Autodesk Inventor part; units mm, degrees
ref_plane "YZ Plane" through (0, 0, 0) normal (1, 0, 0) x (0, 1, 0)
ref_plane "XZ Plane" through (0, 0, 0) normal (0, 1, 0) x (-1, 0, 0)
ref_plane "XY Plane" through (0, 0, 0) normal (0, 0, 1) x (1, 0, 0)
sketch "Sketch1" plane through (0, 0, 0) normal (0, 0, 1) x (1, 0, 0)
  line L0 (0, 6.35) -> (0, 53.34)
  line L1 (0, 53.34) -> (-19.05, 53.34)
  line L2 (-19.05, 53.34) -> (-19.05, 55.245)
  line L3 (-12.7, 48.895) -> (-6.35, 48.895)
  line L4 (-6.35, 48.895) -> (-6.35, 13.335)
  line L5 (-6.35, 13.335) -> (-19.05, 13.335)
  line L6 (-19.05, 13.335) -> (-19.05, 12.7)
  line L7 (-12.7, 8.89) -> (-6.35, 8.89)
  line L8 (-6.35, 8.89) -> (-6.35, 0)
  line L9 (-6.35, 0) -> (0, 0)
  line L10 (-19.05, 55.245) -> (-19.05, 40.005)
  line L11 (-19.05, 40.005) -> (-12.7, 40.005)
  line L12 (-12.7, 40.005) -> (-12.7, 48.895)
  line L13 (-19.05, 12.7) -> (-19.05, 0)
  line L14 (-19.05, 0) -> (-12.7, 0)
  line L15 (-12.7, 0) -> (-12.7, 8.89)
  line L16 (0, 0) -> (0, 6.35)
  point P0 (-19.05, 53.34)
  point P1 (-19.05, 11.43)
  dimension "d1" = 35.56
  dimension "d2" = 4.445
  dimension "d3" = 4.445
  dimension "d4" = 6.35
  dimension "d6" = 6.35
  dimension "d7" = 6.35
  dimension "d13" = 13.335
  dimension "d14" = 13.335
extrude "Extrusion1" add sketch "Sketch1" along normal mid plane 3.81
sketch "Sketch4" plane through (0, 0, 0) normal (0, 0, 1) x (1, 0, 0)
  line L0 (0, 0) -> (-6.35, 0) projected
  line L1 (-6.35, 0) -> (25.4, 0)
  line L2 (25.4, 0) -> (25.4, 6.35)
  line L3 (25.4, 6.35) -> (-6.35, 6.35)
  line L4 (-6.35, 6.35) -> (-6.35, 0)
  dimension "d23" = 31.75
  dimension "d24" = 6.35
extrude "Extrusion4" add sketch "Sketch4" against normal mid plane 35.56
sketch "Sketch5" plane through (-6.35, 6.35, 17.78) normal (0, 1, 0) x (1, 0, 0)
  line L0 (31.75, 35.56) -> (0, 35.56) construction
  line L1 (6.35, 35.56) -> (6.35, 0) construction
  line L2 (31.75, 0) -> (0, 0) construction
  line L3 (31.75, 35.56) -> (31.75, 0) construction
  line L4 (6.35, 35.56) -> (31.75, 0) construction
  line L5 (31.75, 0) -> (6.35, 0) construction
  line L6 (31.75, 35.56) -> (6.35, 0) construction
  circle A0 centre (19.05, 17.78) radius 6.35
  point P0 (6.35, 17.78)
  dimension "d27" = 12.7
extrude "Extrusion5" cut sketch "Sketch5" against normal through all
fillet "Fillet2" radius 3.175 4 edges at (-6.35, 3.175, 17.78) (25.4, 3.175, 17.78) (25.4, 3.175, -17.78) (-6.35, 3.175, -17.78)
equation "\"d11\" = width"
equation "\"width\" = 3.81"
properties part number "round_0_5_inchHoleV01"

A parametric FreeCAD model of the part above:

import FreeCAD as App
import Part
import Sketcher
Q = App.Units.Quantity


def edges_at(feature, points):
    """Names of the edges that pass closest to the given points."""
    edges = feature.Shape.Edges
    near = lambda p: min(range(len(edges)), key=lambda i: edges[i].distToShape(Part.Vertex(*p))[0])
    return sorted({f"Edge{near(p) + 1}" for p in points})


def add_polygon(sketch, points):
    """Adds a closed chain of lines whose ends are joined by coincident constraints."""
    first, n = sketch.GeometryCount, len(points)
    for a, b in zip(points, points[1:] + points[:1]):
        sketch.addGeometry(Part.LineSegment(App.Vector(*a, 0), App.Vector(*b, 0)), False)
    for i in range(n):
        sketch.addConstraint(Sketcher.Constraint("Coincident", first + i, 2, first + (i + 1) % n, 1))

doc = App.newDocument("Part")
body = doc.addObject("PartDesign::Body", "Body")

# Sketch on XY plane
sketch1 = body.newObject("Sketcher::SketchObject", "Sketch")
sketch1.AttachmentSupport = (doc.getObject("XY_Plane"), [""])
sketch1.MapMode = "FlatFace"
add_polygon(sketch1, [(0, 0), (0, 53), (-19, 53), (-19, 40), (-13, 40), (-13, 49), (-6, 49), (-6, 13), (-19, 13), (-19, 0), (-13, 0), (-13, 9), (-6, 9), (-6, 0)])  # lines 0-13
sketch1.addConstraint(Sketcher.Constraint("Vertical", 0))
sketch1.addConstraint(Sketcher.Constraint("Horizontal", 1))
sketch1.addConstraint(Sketcher.Constraint("Vertical", 2))
sketch1.addConstraint(Sketcher.Constraint("Horizontal", 3))
sketch1.addConstraint(Sketcher.Constraint("Vertical", 4))
sketch1.addConstraint(Sketcher.Constraint("Horizontal", 5))
sketch1.addConstraint(Sketcher.Constraint("Vertical", 6))
sketch1.addConstraint(Sketcher.Constraint("Horizontal", 7))
sketch1.addConstraint(Sketcher.Constraint("Vertical", 8))
sketch1.addConstraint(Sketcher.Constraint("Horizontal", 9))
sketch1.addConstraint(Sketcher.Constraint("Vertical", 10))
sketch1.addConstraint(Sketcher.Constraint("Horizontal", 11))
sketch1.addConstraint(Sketcher.Constraint("Vertical", 12))
sketch1.addConstraint(Sketcher.Constraint("Horizontal", 13))
sketch1.addConstraint(Sketcher.Constraint("Coincident", 13, 2, -1, 1))
sketch1.addConstraint(Sketcher.Constraint("PointOnObject", 8, 2, -1))
sketch1.addConstraint(Sketcher.Constraint("Vertical", 2, 2, 7, 2))
sketch1.addConstraint(Sketcher.Constraint("Vertical", 4, 2, 9, 2))
sketch1.addConstraint(Sketcher.Constraint("Vertical", 6, 2, 11, 2))
sketch1.addConstraint(Sketcher.Constraint("Equal", 3, 5))
sketch1.addConstraint(Sketcher.Constraint("Equal", 11, 13))
sketch1.addConstraint(Sketcher.Constraint("Equal", 2, 8))
sketch1.addConstraint(Sketcher.Constraint("Equal", 4, 10))
sketch1.addConstraint(Sketcher.Constraint("DistanceY", 6, 2, 6, 1, Q("1.4 in")))
sketch1.addConstraint(Sketcher.Constraint("DistanceX", 3, 1, 3, 2, Q("0.25 in")))
sketch1.addConstraint(Sketcher.Constraint("DistanceY", 2, 2, 2, 1, Q("0.525 in")))
sketch1.addConstraint(Sketcher.Constraint("DistanceY", 0, 1, 0, 2, Q("2.1 in")))
pad1 = body.newObject("PartDesign::Pad", "Pad")
pad1.Profile = sketch1
pad1.Length = Q("0.15 in")
pad1.Midplane = True

# Sketch on XY plane
sketch2 = body.newObject("Sketcher::SketchObject", "Sketch001")
sketch2.AttachmentSupport = (doc.getObject("XY_Plane"), [""])
sketch2.MapMode = "FlatFace"
add_polygon(sketch2, [(-6, 0), (25, 0), (25, 6), (-6, 6)])  # lines 0-3
sketch2.addConstraint(Sketcher.Constraint("Horizontal", 0))
sketch2.addConstraint(Sketcher.Constraint("Vertical", 1))
sketch2.addConstraint(Sketcher.Constraint("Horizontal", 2))
sketch2.addConstraint(Sketcher.Constraint("Vertical", 3))
sketch2.addConstraint(Sketcher.Constraint("PointOnObject", 0, 2, -1))
sketch2.addConstraint(Sketcher.Constraint("DistanceX", 0, 1, 0, 2, Q("1.25 in")))
sketch2.addConstraint(Sketcher.Constraint("DistanceY", 1, 1, 1, 2, Q("0.25 in")))
sketch2.addConstraint(Sketcher.Constraint("DistanceX", 2, 2, -1, 1, Q("0.25 in")))
pad2 = body.newObject("PartDesign::Pad", "Pad001")
pad2.Profile = sketch2
pad2.Length = Q("1.4 in")
pad2.Midplane = True

# Sketch on XZ plane
sketch3 = body.newObject("Sketcher::SketchObject", "Sketch002")
sketch3.AttachmentSupport = (doc.getObject("XZ_Plane"), [""])
sketch3.MapMode = "FlatFace"
sketch3.AttachmentOffset = App.Placement(App.Vector(0, 0, -0.25 * 25.4), App.Rotation())
sketch3.addGeometry(Part.Circle(App.Vector(13, 0, 0), App.Vector(0, 0, 1), 6), False)
sketch3.addConstraint(Sketcher.Constraint("PointOnObject", 0, 3, -1))
sketch3.addConstraint(Sketcher.Constraint("Diameter", 0, Q("0.5 in")))
sketch3.addConstraint(Sketcher.Constraint("DistanceX", -1, 1, 0, 3, Q("0.5 in")))
pocket1 = body.newObject("PartDesign::Pocket", "Pocket")
pocket1.Profile = sketch3
pocket1.Type = "ThroughAll"
pocket1.Reversed = True
doc.recompute()

fillet = body.newObject("PartDesign::Fillet", "Fillet")
fillet.Base = (pocket1, edges_at(pocket1, [
    (-6.35, 3.175, 17.78),
    (25.4, 3.175, 17.78),
    (25.4, 3.175, -17.78),
    (-6.35, 3.175, -17.78),
]))
fillet.Radius = Q("0.125 in")

doc.recompute()
